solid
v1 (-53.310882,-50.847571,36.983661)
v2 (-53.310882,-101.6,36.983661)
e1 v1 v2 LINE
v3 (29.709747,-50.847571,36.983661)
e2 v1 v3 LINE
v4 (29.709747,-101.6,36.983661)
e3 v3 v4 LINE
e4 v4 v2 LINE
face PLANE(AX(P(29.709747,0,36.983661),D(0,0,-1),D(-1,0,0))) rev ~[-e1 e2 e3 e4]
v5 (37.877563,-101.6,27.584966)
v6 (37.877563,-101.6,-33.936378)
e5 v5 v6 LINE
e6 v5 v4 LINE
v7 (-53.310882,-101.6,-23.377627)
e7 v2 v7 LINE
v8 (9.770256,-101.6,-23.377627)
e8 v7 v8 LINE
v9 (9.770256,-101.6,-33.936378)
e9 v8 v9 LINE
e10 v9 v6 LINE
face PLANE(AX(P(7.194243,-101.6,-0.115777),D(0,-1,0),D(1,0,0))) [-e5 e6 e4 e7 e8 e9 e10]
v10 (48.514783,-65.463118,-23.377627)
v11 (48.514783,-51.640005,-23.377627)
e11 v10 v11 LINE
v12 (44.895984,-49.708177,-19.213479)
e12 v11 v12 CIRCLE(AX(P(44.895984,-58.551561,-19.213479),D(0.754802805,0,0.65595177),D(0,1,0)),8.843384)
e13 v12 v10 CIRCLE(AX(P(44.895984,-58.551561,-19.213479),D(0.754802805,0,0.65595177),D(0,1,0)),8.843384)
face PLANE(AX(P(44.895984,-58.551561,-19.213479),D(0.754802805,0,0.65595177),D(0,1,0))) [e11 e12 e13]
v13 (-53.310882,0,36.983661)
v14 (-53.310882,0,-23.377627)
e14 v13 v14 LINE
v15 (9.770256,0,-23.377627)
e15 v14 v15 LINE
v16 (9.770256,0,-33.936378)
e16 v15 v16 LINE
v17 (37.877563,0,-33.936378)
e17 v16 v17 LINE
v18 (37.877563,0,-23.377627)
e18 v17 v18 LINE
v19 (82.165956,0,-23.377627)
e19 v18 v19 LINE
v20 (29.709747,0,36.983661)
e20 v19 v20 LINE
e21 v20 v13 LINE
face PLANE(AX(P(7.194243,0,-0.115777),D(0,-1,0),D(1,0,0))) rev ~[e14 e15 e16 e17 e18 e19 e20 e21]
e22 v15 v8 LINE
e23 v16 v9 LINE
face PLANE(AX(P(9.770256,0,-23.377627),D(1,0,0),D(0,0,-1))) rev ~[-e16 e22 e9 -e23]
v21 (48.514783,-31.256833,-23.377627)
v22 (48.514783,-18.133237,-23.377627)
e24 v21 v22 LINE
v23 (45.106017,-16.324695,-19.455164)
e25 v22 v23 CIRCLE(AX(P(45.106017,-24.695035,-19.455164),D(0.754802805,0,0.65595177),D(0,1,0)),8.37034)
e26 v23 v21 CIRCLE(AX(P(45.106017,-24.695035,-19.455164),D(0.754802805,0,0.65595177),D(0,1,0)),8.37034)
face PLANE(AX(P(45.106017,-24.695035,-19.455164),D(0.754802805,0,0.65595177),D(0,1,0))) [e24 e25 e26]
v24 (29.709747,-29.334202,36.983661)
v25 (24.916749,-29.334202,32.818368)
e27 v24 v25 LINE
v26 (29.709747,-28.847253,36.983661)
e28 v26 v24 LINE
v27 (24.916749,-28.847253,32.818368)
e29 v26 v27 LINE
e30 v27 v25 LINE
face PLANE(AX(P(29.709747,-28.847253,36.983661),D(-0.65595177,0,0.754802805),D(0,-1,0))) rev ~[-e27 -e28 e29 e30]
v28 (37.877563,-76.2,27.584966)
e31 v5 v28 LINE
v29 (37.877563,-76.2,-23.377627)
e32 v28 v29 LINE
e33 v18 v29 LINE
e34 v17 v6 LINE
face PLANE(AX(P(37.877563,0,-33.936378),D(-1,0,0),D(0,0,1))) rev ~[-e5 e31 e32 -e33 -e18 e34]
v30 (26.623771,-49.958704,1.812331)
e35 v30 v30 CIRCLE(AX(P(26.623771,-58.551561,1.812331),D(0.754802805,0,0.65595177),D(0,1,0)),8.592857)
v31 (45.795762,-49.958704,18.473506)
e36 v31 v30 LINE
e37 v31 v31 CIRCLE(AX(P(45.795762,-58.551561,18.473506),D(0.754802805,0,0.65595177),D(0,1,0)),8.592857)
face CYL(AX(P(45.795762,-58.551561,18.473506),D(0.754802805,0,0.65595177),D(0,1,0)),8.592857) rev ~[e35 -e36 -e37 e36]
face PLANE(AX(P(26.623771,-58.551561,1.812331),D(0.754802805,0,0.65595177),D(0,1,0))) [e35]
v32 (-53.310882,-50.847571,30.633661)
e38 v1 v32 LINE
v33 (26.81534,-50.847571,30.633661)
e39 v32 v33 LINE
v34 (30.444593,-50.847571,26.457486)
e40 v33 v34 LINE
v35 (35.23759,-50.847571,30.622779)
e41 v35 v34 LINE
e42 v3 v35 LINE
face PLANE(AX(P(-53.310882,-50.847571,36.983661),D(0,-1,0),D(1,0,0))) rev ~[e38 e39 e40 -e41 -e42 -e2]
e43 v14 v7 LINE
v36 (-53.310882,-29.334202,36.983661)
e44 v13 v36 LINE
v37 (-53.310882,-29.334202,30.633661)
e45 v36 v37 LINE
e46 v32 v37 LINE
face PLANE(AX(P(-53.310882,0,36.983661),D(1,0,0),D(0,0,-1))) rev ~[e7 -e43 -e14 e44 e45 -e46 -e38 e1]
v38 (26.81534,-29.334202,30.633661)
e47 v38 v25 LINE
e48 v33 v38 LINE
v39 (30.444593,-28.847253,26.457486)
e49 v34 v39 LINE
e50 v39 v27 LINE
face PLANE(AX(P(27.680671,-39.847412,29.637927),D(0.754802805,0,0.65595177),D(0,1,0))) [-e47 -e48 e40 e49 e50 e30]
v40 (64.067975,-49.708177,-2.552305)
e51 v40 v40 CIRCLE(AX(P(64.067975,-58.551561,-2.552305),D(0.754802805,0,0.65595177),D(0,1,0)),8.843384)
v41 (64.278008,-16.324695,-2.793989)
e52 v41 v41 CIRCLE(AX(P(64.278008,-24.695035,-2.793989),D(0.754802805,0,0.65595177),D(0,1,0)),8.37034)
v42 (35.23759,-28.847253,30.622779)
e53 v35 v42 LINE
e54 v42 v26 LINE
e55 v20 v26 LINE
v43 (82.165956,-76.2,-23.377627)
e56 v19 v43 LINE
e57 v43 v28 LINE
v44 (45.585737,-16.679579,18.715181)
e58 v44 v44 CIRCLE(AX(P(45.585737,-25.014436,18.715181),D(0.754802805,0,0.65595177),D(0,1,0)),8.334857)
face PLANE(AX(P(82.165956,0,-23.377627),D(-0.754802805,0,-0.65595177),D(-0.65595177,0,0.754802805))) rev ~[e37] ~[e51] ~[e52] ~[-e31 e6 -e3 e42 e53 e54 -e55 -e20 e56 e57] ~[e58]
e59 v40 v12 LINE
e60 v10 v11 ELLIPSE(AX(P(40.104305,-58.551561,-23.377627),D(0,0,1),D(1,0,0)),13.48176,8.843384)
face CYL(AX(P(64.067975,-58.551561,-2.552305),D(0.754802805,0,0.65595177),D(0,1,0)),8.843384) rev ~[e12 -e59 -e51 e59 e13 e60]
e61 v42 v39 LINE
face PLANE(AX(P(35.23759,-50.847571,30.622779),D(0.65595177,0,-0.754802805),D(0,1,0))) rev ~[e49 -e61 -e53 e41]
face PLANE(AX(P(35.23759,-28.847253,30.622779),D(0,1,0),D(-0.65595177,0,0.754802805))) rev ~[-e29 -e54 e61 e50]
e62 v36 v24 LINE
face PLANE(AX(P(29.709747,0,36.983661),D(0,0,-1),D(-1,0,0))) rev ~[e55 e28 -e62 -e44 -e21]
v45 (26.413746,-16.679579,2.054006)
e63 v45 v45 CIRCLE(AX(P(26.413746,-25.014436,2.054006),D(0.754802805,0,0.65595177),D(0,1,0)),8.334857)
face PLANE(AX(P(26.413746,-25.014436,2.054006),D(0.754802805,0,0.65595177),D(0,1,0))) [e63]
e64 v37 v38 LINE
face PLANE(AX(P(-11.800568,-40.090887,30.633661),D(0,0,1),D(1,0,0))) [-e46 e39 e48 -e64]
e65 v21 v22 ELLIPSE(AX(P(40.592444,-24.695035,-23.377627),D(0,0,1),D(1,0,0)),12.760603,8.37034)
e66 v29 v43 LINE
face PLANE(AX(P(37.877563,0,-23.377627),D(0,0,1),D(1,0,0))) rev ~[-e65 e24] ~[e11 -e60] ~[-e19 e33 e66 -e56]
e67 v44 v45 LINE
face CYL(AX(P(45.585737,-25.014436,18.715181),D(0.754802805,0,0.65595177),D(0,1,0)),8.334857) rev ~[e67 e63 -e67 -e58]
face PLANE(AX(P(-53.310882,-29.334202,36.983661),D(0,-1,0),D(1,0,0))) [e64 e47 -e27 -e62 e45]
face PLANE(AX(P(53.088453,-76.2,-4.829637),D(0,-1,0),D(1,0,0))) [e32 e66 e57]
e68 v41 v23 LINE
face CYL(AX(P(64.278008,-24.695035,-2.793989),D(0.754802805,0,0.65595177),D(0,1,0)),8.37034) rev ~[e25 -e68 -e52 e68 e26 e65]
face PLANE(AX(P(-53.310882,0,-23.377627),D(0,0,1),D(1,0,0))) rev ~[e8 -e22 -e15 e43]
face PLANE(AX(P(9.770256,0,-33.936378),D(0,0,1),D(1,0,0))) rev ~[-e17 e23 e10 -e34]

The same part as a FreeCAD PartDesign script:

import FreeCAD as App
import Part
import Sketcher
from FreeCAD import Vector
Q = App.Units.Quantity

doc = App.newDocument("Part")
body = doc.addObject("PartDesign::Body", "Body")

# Sketch on XZ plane
sketch1 = body.newObject("Sketcher::SketchObject", "Sketch")
sketch1.AttachmentSupport = (doc.getObject("XZ_Plane"), [""])
sketch1.MapMode = "FlatFace"
sketch1.addGeometry([
    Part.LineSegment(Vector(30, 37, 0), Vector(-53, 37, 0)),  # 0
    Part.LineSegment(Vector(-53, 37, 0), Vector(-53, -23, 0)),  # 1
    Part.LineSegment(Vector(-53, -23, 0), Vector(10, -23, 0)),  # 2
    Part.LineSegment(Vector(10, -23, 0), Vector(10, -34, 0)),  # 3
    Part.LineSegment(Vector(10, -34, 0), Vector(38, -34, 0)),  # 4
    Part.LineSegment(Vector(38, -34, 0), Vector(38, -23, 0)),  # 5
    Part.LineSegment(Vector(38, -23, 0), Vector(82, -23, 0)),  # 6
    Part.LineSegment(Vector(82, -23, 0), Vector(30, 37, 0)),  # 7
], False)
sketch1.addConstraint([
    Sketcher.Constraint("Coincident", 0, 2, 1, 1),
    Sketcher.Constraint("Coincident", 1, 2, 2, 1),
    Sketcher.Constraint("Coincident", 2, 2, 3, 1),
    Sketcher.Constraint("Coincident", 3, 2, 4, 1),
    Sketcher.Constraint("Coincident", 4, 2, 5, 1),
    Sketcher.Constraint("Coincident", 5, 2, 6, 1),
    Sketcher.Constraint("Coincident", 6, 2, 7, 1),
    Sketcher.Constraint("Coincident", 7, 2, 0, 1),
    Sketcher.Constraint("Horizontal", 0),
    Sketcher.Constraint("Vertical", 1),
    Sketcher.Constraint("Horizontal", 2),
    Sketcher.Constraint("Vertical", 3),
    Sketcher.Constraint("Horizontal", 4),
    Sketcher.Constraint("Vertical", 5),
    Sketcher.Constraint("Horizontal", 6),
    Sketcher.Constraint("Horizontal", 2, 2, 5, 2),
    Sketcher.Constraint("DistanceX", 0, 2, 0, 1, 83.020629),
    Sketcher.Constraint("DistanceY", 1, 2, 1, 1, 60.361288),
    Sketcher.Constraint("DistanceY", 3, 2, 3, 1, 10.55875),
    Sketcher.Constraint("DistanceX", 2, 2, 6, 2, 72.395701),
    Sketcher.Constraint("DistanceX", 2, 1, 2, 2, 63.081138),
    Sketcher.Constraint("DistanceX", 4, 1, 4, 2, 28.107308),
    Sketcher.Constraint("DistanceY", -1, 1, 0, 2, 36.983661),
    Sketcher.Constraint("DistanceX", 0, 2, -1, 1, 53.310882),
])
pad1 = body.newObject("PartDesign::Pad", "Pad")
pad1.Profile = sketch1
pad1.Length = Q("4 in")

# Sketch on XY plane
sketch2 = body.newObject("Sketcher::SketchObject", "Sketch001")
sketch2.AttachmentSupport = (doc.getObject("XY_Plane"), [""])
sketch2.MapMode = "FlatFace"
sketch2.AttachmentOffset = App.Placement(Vector(0, 0, 36.983661), App.Rotation())
sketch2.addGeometry([
    Part.LineSegment(Vector(-53, -29, 0), Vector(-53, -51, 0)),
    Part.LineSegment(Vector(-53, -51, 0), Vector(30, -51, 0)),
    Part.LineSegment(Vector(30, -51, 0), Vector(30, -29, 0)),
    Part.LineSegment(Vector(30, -29, 0), Vector(-53, -29, 0)),
], False)
sketch2.addConstraint([
    Sketcher.Constraint("Coincident", 0, 2, 1, 1),
    Sketcher.Constraint("Coincident", 1, 2, 2, 1),
    Sketcher.Constraint("Coincident", 2, 2, 3, 1),
    Sketcher.Constraint("Coincident", 3, 2, 0, 1),
    Sketcher.Constraint("Vertical", 0),
    Sketcher.Constraint("Horizontal", 1),
    Sketcher.Constraint("Vertical", 2),
    Sketcher.Constraint("Horizontal", 3),
    Sketcher.Constraint("DistanceX", 1, 1, 1, 2, 83.020629),
    Sketcher.Constraint("DistanceY", 0, 2, 0, 1, 21.513369),
    Sketcher.Constraint("DistanceY", 0, 2, -1, 1, 50.847571),
    Sketcher.Constraint("DistanceX", 0, 2, -1, 1, 53.310882),
])
pocket1 = body.newObject("PartDesign::Pocket", "Pocket")
pocket1.Profile = sketch2
pocket1.Length = Q("0.25 in")

# Sketch on an angled plane
sketch3 = body.newObject("Sketcher::SketchObject", "Sketch002")
sketch3.Placement = App.Placement(Vector(35.23759, 0, 30.622779), App.Rotation(Vector(0, 1, 0), Vector(-0.65595177, 0, 0.754802805), Vector(0.754802805, 0, 0.65595177), "ZXY"))
sketch3.addGeometry([
    Part.LineSegment(Vector(-51, 8, 0), Vector(-51, 0, 0)),
    Part.LineSegment(Vector(-51, 0, 0), Vector(-29, 0, 0)),
    Part.LineSegment(Vector(-29, 0, 0), Vector(-29, 8, 0)),
    Part.LineSegment(Vector(-29, 8, 0), Vector(-51, 8, 0)),
], False)
sketch3.addConstraint([
    Sketcher.Constraint("Coincident", 0, 2, 1, 1),
    Sketcher.Constraint("Coincident", 1, 2, 2, 1),
    Sketcher.Constraint("Coincident", 2, 2, 3, 1),
    Sketcher.Constraint("Coincident", 3, 2, 0, 1),
    Sketcher.Constraint("Vertical", 0),
    Sketcher.Constraint("Horizontal", 1),
    Sketcher.Constraint("Vertical", 2),
    Sketcher.Constraint("Horizontal", 3),
    Sketcher.Constraint("PointOnObject", 0, 2, -1),
    Sketcher.Constraint("DistanceX", 1, 1, 1, 2, 22.000318),
    Sketcher.Constraint("DistanceY", 0, 2, 0, 1, 8.42721),
    Sketcher.Constraint("DistanceX", 0, 2, -1, 1, 50.847571),
])
pocket2 = body.newObject("PartDesign::Pocket", "Pocket001")
pocket2.Profile = sketch3
pocket2.Length = Q("0.25 in")

# Sketch on an angled plane
sketch4 = body.newObject("Sketcher::SketchObject", "Sketch003")
sketch4.Placement = App.Placement(Vector(35.23759, 0, 30.622779), App.Rotation(Vector(0, 1, 0), Vector(-0.65595177, 0, 0.754802805), Vector(0.754802805, 0, 0.65595177), "ZXY"))
sketch4.addGeometry([
    Part.Circle(Vector(-59, -16, 0), Vector(0, 0, 1), 9),
    Part.Circle(Vector(-25, -16, 0), Vector(0, 0, 1), 8),
    Part.Circle(Vector(-25, -44, 0), Vector(0, 0, 1), 8),
    Part.Circle(Vector(-59, -44, 0), Vector(0, 0, 1), 9),
], False)
sketch4.addConstraint([
    Sketcher.Constraint("Vertical", 0, 3, 3, 3),
    Sketcher.Constraint("Diameter", 2, 16.74068),
    Sketcher.Constraint("Diameter", 3, 17.686769),
    Sketcher.Constraint("Diameter", 0, 17.185714),
    Sketcher.Constraint("Diameter", 1, 16.669714),
    Sketcher.Constraint("DistanceX", 1, 3, 2, 3, 0.319401),
    Sketcher.Constraint("DistanceX", 0, 3, -1, 1, 58.551561),
    Sketcher.Constraint("DistanceY", 3, 3, -1, 1, 43.951988),
    Sketcher.Constraint("DistanceY", 2, 3, 1, 3, 28.496411),
    Sketcher.Constraint("DistanceY", 3, 3, 0, 3, 27.856031),
    Sketcher.Constraint("DistanceX", 1, 3, -1, 1, 25.014436),
    Sketcher.Constraint("DistanceY", 1, 3, -1, 1, 15.775774),
])
pocket3 = body.newObject("PartDesign::Pocket", "Pocket002")
pocket3.Profile = sketch4
pocket3.Length = Q("1 in")

# Sketch on XZ plane
sketch5 = body.newObject("Sketcher::SketchObject", "Sketch004")
sketch5.AttachmentSupport = (doc.getObject("XZ_Plane"), [""])
sketch5.MapMode = "FlatFace"
sketch5.AttachmentOffset = App.Placement(Vector(0, 0, 4 * 25.4), App.Rotation())
sketch5.addGeometry([
    Part.LineSegment(Vector(38, 28, 0), Vector(38, -23, 0)),
    Part.LineSegment(Vector(38, -23, 0), Vector(82, -23, 0)),
    Part.LineSegment(Vector(82, -23, 0), Vector(38, 28, 0)),
], False)
sketch5.addConstraint([
    Sketcher.Constraint("Coincident", 0, 2, 1, 1),
    Sketcher.Constraint("Coincident", 1, 2, 2, 1),
    Sketcher.Constraint("Coincident", 2, 2, 0, 1),
    Sketcher.Constraint("Vertical", 0),
    Sketcher.Constraint("Horizontal", 1),
    Sketcher.Constraint("Distance", 2, 67.517758),
    Sketcher.Constraint("DistanceX", 1, 1, 1, 2, 44.288393),
    Sketcher.Constraint("DistanceX", -1, 1, 0, 2, 37.877563),
    Sketcher.Constraint("DistanceY", 0, 2, -1, 1, 23.377627),
])
pocket4 = body.newObject("PartDesign::Pocket", "Pocket003")
pocket4.Profile = sketch5
pocket4.Length = Q("1 in")

doc.recompute()
